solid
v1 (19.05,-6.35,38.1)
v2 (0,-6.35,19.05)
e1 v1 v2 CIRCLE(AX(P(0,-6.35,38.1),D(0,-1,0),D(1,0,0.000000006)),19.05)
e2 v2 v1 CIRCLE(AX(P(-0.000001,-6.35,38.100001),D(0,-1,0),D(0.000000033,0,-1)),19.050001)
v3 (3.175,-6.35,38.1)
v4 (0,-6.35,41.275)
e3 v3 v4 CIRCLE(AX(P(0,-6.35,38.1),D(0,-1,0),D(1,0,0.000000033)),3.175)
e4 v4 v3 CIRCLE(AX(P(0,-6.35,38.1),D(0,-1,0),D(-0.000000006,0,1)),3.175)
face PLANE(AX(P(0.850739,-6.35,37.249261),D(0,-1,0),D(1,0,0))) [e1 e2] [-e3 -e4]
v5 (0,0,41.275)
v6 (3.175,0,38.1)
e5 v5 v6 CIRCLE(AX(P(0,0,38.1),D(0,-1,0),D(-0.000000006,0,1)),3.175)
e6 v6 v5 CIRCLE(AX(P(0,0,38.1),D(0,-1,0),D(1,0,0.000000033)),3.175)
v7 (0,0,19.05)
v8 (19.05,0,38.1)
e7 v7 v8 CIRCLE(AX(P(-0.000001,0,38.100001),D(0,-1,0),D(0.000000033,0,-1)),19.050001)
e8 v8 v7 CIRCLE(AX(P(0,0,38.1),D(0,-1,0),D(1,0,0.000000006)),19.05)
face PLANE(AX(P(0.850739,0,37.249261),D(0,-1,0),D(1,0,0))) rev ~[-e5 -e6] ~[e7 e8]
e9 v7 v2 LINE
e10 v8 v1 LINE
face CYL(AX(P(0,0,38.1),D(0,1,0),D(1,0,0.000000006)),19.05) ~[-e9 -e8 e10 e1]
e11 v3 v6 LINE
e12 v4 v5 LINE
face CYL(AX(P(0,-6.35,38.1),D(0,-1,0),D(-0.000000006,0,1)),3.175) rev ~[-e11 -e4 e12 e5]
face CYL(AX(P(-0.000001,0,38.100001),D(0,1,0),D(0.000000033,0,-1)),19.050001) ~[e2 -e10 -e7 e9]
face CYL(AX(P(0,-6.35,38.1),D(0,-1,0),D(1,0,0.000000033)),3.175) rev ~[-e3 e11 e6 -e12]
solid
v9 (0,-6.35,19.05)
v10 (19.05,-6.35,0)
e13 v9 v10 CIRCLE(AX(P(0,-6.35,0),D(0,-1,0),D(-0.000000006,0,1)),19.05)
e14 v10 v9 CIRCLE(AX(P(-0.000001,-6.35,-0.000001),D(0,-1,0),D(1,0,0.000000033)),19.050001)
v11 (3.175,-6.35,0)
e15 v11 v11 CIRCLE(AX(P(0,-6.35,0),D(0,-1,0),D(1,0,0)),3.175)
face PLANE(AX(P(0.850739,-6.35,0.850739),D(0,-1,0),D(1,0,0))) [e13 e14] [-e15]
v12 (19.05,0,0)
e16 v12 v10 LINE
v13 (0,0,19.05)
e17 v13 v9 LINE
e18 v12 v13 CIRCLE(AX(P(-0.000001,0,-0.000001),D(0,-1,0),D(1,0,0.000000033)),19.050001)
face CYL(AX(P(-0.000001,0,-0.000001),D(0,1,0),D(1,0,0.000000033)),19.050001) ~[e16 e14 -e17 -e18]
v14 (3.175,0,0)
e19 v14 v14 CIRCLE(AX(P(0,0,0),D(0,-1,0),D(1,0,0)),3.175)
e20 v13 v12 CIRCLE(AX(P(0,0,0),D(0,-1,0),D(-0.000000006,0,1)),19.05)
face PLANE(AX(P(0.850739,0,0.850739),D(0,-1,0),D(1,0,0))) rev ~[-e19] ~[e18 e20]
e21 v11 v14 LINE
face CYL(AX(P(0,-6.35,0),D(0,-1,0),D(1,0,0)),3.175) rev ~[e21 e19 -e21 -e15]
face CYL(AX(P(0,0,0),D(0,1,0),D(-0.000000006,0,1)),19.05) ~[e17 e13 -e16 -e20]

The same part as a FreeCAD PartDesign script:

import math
import FreeCAD as App
import Part
import Sketcher
from FreeCAD import Vector
Q = App.Units.Quantity

doc = App.newDocument("Part")
body = doc.addObject("PartDesign::Body", "Body")
body.AllowCompound = True

# Sketch on XZ plane
sketch1 = body.newObject("Sketcher::SketchObject", "Sketch")
sketch1.AttachmentSupport = (doc.getObject("XZ_Plane"), [""])
sketch1.MapMode = "FlatFace"
sketch1.addGeometry(Part.ArcOfCircle(Part.Circle(Vector(0, 0, 0), Vector(0, 0, 1), 19.05), math.radians(90), math.radians(360)), False)
sketch1.addGeometry(Part.ArcOfCircle(Part.Circle(Vector(-0.000001, -0.000001, 0), Vector(0, 0, 1), 19.050001), math.radians(0.000002), math.radians(89.999998)), False)
sketch1.addGeometry(Part.ArcOfCircle(Part.Circle(Vector(0, 38.1, 0), Vector(0, 0, 1), 19.05), math.radians(0), math.radians(270)), False)
sketch1.addGeometry(Part.ArcOfCircle(Part.Circle(Vector(-0.000001, 38.100001, 0), Vector(0, 0, 1), 19.050001), math.radians(-89.999998), math.radians(-0.000002)), False)
sketch1.addConstraint(Sketcher.Constraint("Tangent", 0, 1, 1, 2))
sketch1.addConstraint(Sketcher.Constraint("Coincident", 1, 1, 0, 2))
sketch1.addConstraint(Sketcher.Constraint("Tangent", 2, 1, 3, 2))
sketch1.addConstraint(Sketcher.Constraint("Coincident", 3, 1, 2, 2))
sketch1.addConstraint(Sketcher.Constraint("Coincident", 0, 3, -1, 1))
sketch1.addConstraint(Sketcher.Constraint("Coincident", 3, 1, 0, 1))
sketch1.addConstraint(Sketcher.Constraint("Equal", 1, 2))
sketch1.addConstraint(Sketcher.Constraint("PointOnObject", 2, 3, -2))
sketch1.addConstraint(Sketcher.Constraint("PointOnObject", 0, 1, -2))
sketch1.addConstraint(Sketcher.Constraint("PointOnObject", 1, 1, -1))
sketch1.addConstraint(Sketcher.Constraint("Horizontal", 3, 3, 2, 1))
sketch1.addConstraint(Sketcher.Constraint("Radius", 0, Q("0.75 in")))
pad1 = body.newObject("PartDesign::Pad", "Pad")
pad1.Profile = sketch1
pad1.Length = Q("0.25 in")

# Sketch on XZ plane
sketch2 = body.newObject("Sketcher::SketchObject", "Sketch001")
sketch2.AttachmentSupport = (doc.getObject("XZ_Plane"), [""])
sketch2.MapMode = "FlatFace"
sketch2.AttachmentOffset = App.Placement(Vector(0, 0, 0.25 * 25.4), App.Rotation())
sketch2.addGeometry(Part.ArcOfCircle(Part.Circle(Vector(0, 38.1, 0), Vector(0, 0, 1), 3.175), math.radians(0.000002), math.radians(89.999998)), False)
sketch2.addGeometry(Part.ArcOfCircle(Part.Circle(Vector(0, 38.1, 0), Vector(0, 0, 1), 3.175), math.radians(90), math.radians(360)), False)
sketch2.addGeometry(Part.Circle(Vector(0, 0, 0), Vector(0, 0, 1), 3.175), False)
sketch2.addConstraint(Sketcher.Constraint("Tangent", 0, 1, 1, 2))
sketch2.addConstraint(Sketcher.Constraint("Coincident", 1, 1, 0, 2))
sketch2.addConstraint(Sketcher.Constraint("Coincident", 2, 3, -1, 1))
sketch2.addConstraint(Sketcher.Constraint("Equal", 1, 2))
sketch2.addConstraint(Sketcher.Constraint("PointOnObject", 0, 3, -2))
sketch2.addConstraint(Sketcher.Constraint("PointOnObject", 1, 1, -2))
sketch2.addConstraint(Sketcher.Constraint("Horizontal", 1, 3, 0, 1))
sketch2.addConstraint(Sketcher.Constraint("Diameter", 2, Q("0.25 in")))
sketch2.addConstraint(Sketcher.Constraint("DistanceY", -1, 1, 0, 3, Q("1.5 in")))
pocket1 = body.newObject("PartDesign::Pocket", "Pocket")
pocket1.Profile = sketch2
pocket1.Length = Q("0.25 in")

doc.recompute()
